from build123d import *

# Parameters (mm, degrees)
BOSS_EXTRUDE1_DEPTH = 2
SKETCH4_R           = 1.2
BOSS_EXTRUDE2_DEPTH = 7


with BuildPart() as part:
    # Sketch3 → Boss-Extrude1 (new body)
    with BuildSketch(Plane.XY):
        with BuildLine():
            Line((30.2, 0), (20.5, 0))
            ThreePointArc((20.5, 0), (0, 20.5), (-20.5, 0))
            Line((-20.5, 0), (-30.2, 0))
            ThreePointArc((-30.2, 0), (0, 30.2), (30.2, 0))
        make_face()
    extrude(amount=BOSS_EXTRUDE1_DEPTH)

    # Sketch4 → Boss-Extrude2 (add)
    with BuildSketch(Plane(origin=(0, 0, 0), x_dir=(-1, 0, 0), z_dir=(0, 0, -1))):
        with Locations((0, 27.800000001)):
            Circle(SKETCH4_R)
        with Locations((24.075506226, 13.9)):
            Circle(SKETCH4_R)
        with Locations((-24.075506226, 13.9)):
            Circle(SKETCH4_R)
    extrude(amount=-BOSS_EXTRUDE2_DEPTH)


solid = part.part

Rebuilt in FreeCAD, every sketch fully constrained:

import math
import FreeCAD as App
import Part
import Sketcher

V = App.Vector
Q = App.Units.Quantity

doc = App.newDocument("Part")
body = doc.addObject("PartDesign::Body", "Body")

sketch1 = body.newObject("Sketcher::SketchObject", "Sketch")
sketch1.AttachmentSupport = (doc.getObject("XY_Plane"), [""])
sketch1.MapMode = "FlatFace"
sketch1.addGeometry(Part.LineSegment(V(20, 0, 0), V(30, 0, 0)), False)
sketch1.addGeometry(Part.ArcOfCircle(Part.Circle(V(0, 0, 0), V(0, 0, 1), 30), math.radians(0), math.radians(180)), False)
sketch1.addGeometry(Part.LineSegment(V(-30, 0, 0), V(-20, 0, 0)), False)
sketch1.addGeometry(Part.ArcOfCircle(Part.Circle(V(0, 0, 0), V(0, 0, 1), 20), math.radians(0), math.radians(180)), False)
sketch1.addConstraint(Sketcher.Constraint("Coincident", 0, 2, 1, 1))
sketch1.addConstraint(Sketcher.Constraint("Coincident", 1, 2, 2, 1))
sketch1.addConstraint(Sketcher.Constraint("Coincident", 2, 2, 3, 2))
sketch1.addConstraint(Sketcher.Constraint("Coincident", 3, 1, 0, 1))
sketch1.addConstraint(Sketcher.Constraint("Horizontal", 0))
sketch1.addConstraint(Sketcher.Constraint("Horizontal", 2))
sketch1.addConstraint(Sketcher.Constraint("Coincident", 1, 3, -1, 1))
sketch1.addConstraint(Sketcher.Constraint("Coincident", 3, 3, -1, 1))
sketch1.addConstraint(Sketcher.Constraint("PointOnObject", 0, 2, -1))
sketch1.addConstraint(Sketcher.Constraint("PointOnObject", 1, 2, -1))
sketch1.addConstraint(Sketcher.Constraint("Radius", 1, Q("30.2 mm")))
sketch1.addConstraint(Sketcher.Constraint("Radius", 3, Q("20.5 mm")))
pad1 = body.newObject("PartDesign::Pad", "Pad")
pad1.Profile = sketch1
pad1.Length = 2

sketch2 = body.newObject("Sketcher::SketchObject", "Sketch001")
sketch2.AttachmentSupport = (doc.getObject("XY_Plane"), [""])
sketch2.MapMode = "FlatFace"
sketch2.addGeometry(Part.Circle(V(0, 27.8, 0), V(0, 0, 1), 1.2), False)
sketch2.addGeometry(Part.Circle(V(-24.1, 13.9, 0), V(0, 0, 1), 1.2), False)
sketch2.addGeometry(Part.Circle(V(24.1, 13.9, 0), V(0, 0, 1), 1.2), False)
sketch2.addConstraint(Sketcher.Constraint("Equal", 0, 1))
sketch2.addConstraint(Sketcher.Constraint("Equal", 1, 2))
sketch2.addConstraint(Sketcher.Constraint("Symmetric", 1, 3, 2, 3, -2))
sketch2.addConstraint(Sketcher.Constraint("PointOnObject", 0, 3, -2))
sketch2.addConstraint(Sketcher.Constraint("Diameter", 0, Q("2.4 mm")))
sketch2.addConstraint(Sketcher.Constraint("DistanceY", -1, 1, 0, 3, Q("27.8 mm")))
sketch2.addConstraint(Sketcher.Constraint("DistanceY", -1, 1, 1, 3, Q("13.9 mm")))
sketch2.addConstraint(Sketcher.Constraint("DistanceX", 1, 3, -1, 1, Q("24.075506 mm")))
pad2 = body.newObject("PartDesign::Pad", "Pad001")
pad2.Profile = sketch2
pad2.Length = 7

doc.recompute()
